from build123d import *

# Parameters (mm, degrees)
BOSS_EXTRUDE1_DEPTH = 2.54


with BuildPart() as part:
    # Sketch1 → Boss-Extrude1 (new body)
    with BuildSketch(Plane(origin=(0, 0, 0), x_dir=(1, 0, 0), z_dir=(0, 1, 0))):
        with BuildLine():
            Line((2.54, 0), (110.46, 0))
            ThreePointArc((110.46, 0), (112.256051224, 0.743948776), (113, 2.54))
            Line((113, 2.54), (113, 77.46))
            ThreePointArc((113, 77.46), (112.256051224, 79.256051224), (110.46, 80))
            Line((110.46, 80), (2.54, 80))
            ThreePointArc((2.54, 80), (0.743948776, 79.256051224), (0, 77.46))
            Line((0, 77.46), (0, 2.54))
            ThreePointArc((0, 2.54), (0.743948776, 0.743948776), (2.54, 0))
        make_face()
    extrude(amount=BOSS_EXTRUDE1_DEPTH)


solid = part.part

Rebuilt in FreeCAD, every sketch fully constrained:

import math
import FreeCAD as App
import Part
import Sketcher

V = App.Vector
Q = App.Units.Quantity

doc = App.newDocument("Part")
params = doc.addObject("Spreadsheet::Sheet", "Params")
for row, (alias, value) in enumerate([
    ("sketch1_radius", "0.1 in"),
    ("pad1_length", "0.1 in"),
], start=1):
    params.set(f"A{row}", alias)
    params.set(f"B{row}", "=" + value)
    params.setAlias(f"B{row}", alias)

body = doc.addObject("PartDesign::Body", "Body")

# Sketch on XZ plane
sketch1 = body.newObject("Sketcher::SketchObject", "Sketch")
sketch1.AttachmentSupport = (doc.getObject("XZ_Plane"), [""])
sketch1.MapMode = "FlatFace"
sketch1.addGeometry(Part.LineSegment(V(2.5, 0, 0), V(110.5, 0, 0)), False)
sketch1.addGeometry(Part.ArcOfCircle(Part.Circle(V(110.5, -2.5, 0), V(0, 0, 1), 2.5), math.radians(0), math.radians(90)), False)
sketch1.addGeometry(Part.LineSegment(V(113, -2.5, 0), V(113, -77.5, 0)), False)
sketch1.addGeometry(Part.ArcOfCircle(Part.Circle(V(110.5, -77.5, 0), V(0, 0, 1), 2.5), math.radians(-90), math.radians(0)), False)
sketch1.addGeometry(Part.LineSegment(V(110.5, -80, 0), V(2.5, -80, 0)), False)
sketch1.addGeometry(Part.ArcOfCircle(Part.Circle(V(2.5, -77.5, 0), V(0, 0, 1), 2.5), math.radians(-180), math.radians(-90)), False)
sketch1.addGeometry(Part.LineSegment(V(0, -77.5, 0), V(0, -2.5, 0)), False)
sketch1.addGeometry(Part.ArcOfCircle(Part.Circle(V(2.5, -2.5, 0), V(0, 0, 1), 2.5), math.radians(90), math.radians(180)), False)
sketch1.addConstraint(Sketcher.Constraint("Tangent", 0, 2, 1, 2))
sketch1.addConstraint(Sketcher.Constraint("Tangent", 1, 1, 2, 1))
sketch1.addConstraint(Sketcher.Constraint("Tangent", 2, 2, 3, 2))
sketch1.addConstraint(Sketcher.Constraint("Tangent", 3, 1, 4, 1))
sketch1.addConstraint(Sketcher.Constraint("Tangent", 4, 2, 5, 2))
sketch1.addConstraint(Sketcher.Constraint("Tangent", 5, 1, 6, 1))
sketch1.addConstraint(Sketcher.Constraint("Tangent", 6, 2, 7, 2))
sketch1.addConstraint(Sketcher.Constraint("Tangent", 7, 1, 0, 1))
sketch1.addConstraint(Sketcher.Constraint("Horizontal", 0))
sketch1.addConstraint(Sketcher.Constraint("Vertical", 2))
sketch1.addConstraint(Sketcher.Constraint("Horizontal", 4))
sketch1.addConstraint(Sketcher.Constraint("Vertical", 6))
sketch1.addConstraint(Sketcher.Constraint("Equal", 1, 3))
sketch1.addConstraint(Sketcher.Constraint("Equal", 3, 5))
sketch1.addConstraint(Sketcher.Constraint("Equal", 5, 7))
sketch1.addConstraint(Sketcher.Constraint("PointOnObject", 0, 2, -1))
sketch1.addConstraint(Sketcher.Constraint("PointOnObject", 5, 1, -2))
sketch1.addConstraint(Sketcher.Constraint("Radius", 1, Q("0.1 in")))
sketch1.addConstraint(Sketcher.Constraint("DistanceX", 0, 1, 0, 2, Q("107.92 mm")))
sketch1.addConstraint(Sketcher.Constraint("DistanceY", 2, 2, 2, 1, Q("74.92 mm")))
sketch1.setExpression("Constraints[17]", "Params.sketch1_radius")
pad1 = body.newObject("PartDesign::Pad", "Pad")
pad1.Profile = sketch1
pad1.setExpression("Length", "Params.pad1_length")
pad1.Reversed = True

doc.recompute()
